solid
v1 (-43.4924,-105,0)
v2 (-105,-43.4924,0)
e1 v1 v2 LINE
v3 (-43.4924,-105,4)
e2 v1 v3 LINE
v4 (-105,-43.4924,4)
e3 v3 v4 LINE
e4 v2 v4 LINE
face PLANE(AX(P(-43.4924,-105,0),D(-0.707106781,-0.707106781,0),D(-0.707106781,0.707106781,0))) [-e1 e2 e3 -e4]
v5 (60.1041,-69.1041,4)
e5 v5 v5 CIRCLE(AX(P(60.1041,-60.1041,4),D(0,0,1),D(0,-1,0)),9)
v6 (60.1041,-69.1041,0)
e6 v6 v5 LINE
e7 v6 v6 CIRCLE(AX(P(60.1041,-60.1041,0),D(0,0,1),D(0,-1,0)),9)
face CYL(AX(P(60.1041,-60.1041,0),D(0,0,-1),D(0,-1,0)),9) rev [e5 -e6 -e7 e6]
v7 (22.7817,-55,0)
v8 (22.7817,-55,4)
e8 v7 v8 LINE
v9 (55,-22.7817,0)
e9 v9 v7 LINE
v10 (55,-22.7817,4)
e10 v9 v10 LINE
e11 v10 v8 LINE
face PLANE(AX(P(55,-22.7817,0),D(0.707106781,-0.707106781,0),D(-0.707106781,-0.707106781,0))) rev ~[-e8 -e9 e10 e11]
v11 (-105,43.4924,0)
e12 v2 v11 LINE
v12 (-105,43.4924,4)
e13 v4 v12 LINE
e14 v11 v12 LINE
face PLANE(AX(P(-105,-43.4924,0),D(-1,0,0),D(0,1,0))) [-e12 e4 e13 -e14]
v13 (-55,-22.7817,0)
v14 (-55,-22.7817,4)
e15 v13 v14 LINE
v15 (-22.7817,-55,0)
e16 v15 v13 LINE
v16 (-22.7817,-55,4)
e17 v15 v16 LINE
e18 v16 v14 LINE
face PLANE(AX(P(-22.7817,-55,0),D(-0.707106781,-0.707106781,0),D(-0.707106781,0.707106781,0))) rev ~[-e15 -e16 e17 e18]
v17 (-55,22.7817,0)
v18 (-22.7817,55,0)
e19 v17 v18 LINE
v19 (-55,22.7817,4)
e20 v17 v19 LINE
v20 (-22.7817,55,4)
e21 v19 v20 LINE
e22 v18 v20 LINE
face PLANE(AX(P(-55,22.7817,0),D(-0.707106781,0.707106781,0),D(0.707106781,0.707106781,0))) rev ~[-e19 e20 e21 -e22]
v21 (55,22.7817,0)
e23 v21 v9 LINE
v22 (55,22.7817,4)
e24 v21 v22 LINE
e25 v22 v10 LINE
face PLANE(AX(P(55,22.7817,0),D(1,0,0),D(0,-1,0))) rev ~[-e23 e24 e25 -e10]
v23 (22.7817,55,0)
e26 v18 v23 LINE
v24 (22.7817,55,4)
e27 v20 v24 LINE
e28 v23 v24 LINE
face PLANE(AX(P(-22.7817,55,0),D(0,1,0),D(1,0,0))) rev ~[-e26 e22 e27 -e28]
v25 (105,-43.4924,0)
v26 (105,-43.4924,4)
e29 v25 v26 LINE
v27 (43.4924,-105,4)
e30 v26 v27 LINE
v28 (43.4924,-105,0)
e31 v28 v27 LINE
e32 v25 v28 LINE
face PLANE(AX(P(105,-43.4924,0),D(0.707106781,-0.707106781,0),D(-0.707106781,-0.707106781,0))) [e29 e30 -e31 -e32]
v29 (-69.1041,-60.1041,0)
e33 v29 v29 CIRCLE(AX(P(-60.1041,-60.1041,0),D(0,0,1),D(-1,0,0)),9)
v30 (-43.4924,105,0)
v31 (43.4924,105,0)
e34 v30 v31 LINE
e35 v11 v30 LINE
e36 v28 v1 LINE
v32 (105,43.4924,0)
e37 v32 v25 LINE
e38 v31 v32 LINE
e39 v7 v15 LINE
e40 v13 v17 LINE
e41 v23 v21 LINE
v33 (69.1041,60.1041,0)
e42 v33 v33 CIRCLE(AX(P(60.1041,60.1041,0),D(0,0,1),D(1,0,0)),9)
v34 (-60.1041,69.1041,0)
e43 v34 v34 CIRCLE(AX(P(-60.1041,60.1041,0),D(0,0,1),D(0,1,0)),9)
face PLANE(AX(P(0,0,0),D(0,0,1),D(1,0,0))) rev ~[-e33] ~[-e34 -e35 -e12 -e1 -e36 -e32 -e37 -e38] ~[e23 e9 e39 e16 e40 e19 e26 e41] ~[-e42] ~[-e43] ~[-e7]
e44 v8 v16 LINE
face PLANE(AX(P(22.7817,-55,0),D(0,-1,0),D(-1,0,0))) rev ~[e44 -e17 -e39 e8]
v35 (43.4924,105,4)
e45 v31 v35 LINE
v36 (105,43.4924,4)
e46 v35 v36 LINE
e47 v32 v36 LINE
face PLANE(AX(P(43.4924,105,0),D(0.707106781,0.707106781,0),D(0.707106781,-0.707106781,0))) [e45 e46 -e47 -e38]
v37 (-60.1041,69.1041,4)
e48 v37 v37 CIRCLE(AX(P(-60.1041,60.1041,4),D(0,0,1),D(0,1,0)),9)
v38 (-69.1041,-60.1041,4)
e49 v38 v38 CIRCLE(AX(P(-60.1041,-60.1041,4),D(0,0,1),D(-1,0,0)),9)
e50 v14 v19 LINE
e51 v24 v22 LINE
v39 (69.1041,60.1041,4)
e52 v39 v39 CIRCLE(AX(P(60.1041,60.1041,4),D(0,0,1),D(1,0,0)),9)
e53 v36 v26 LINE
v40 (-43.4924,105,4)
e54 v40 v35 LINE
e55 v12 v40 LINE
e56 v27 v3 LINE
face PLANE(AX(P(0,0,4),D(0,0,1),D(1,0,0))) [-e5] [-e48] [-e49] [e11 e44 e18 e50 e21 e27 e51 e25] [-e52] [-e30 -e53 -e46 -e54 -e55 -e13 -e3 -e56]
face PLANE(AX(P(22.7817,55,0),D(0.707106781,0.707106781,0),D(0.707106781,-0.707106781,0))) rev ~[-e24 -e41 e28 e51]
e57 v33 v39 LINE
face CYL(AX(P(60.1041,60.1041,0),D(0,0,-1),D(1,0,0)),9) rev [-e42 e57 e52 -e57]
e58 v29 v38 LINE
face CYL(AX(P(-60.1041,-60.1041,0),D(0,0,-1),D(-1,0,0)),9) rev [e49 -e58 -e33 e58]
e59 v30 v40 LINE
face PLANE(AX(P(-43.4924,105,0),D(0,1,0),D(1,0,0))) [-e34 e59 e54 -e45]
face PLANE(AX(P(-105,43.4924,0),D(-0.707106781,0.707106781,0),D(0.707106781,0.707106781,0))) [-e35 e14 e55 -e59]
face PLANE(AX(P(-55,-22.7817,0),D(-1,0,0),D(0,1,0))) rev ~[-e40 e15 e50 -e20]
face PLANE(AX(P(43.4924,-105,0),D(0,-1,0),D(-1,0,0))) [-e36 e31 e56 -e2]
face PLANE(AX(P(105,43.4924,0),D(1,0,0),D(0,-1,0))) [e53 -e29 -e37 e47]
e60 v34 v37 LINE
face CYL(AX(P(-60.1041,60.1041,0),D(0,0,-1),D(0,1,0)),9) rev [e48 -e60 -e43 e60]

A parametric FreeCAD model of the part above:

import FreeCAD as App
import Part
import Sketcher

V = App.Vector
Q = App.Units.Quantity

doc = App.newDocument("Part")
params = doc.addObject("Spreadsheet::Sheet", "Params")
for row, (alias, value) in enumerate([
    ("pad1_length", "4 mm"),
    ("sketch2_diameter", "18 mm"),
    ("pocket1_length", "4 mm"),
], start=1):
    params.set(f"A{row}", alias)
    params.set(f"B{row}", "=" + value)
    params.setAlias(f"B{row}", alias)

body = doc.addObject("PartDesign::Body", "Body")

# Sketch on XY plane
sketch1 = doc.addObject("Sketcher::SketchObject", "Sketch")
body.addObject(sketch1)
sketch1.AttachmentSupport = (doc.XY_Plane, [""])
sketch1.MapMode = "FlatFace"
sketch1.addGeometry(Part.LineSegment(V(-43, -105, 0), V(43, -105, 0)), False)
sketch1.addGeometry(Part.LineSegment(V(43, -105, 0), V(105, -43, 0)), False)
sketch1.addGeometry(Part.LineSegment(V(105, -43, 0), V(105, 43, 0)), False)
sketch1.addGeometry(Part.LineSegment(V(105, 43, 0), V(43, 105, 0)), False)
sketch1.addGeometry(Part.LineSegment(V(43, 105, 0), V(-43, 105, 0)), False)
sketch1.addGeometry(Part.LineSegment(V(-43, 105, 0), V(-105, 43, 0)), False)
sketch1.addGeometry(Part.LineSegment(V(-105, 43, 0), V(-105, -43, 0)), False)
sketch1.addGeometry(Part.LineSegment(V(-105, -43, 0), V(-43, -105, 0)), False)
sketch1.addGeometry(Part.LineSegment(V(-23, 55, 0), V(23, 55, 0)), False)
sketch1.addGeometry(Part.LineSegment(V(23, 55, 0), V(55, 23, 0)), False)
sketch1.addGeometry(Part.LineSegment(V(55, 23, 0), V(55, -23, 0)), False)
sketch1.addGeometry(Part.LineSegment(V(55, -23, 0), V(23, -55, 0)), False)
sketch1.addGeometry(Part.LineSegment(V(23, -55, 0), V(-23, -55, 0)), False)
sketch1.addGeometry(Part.LineSegment(V(-23, -55, 0), V(-55, -23, 0)), False)
sketch1.addGeometry(Part.LineSegment(V(-55, -23, 0), V(-55, 23, 0)), False)
sketch1.addGeometry(Part.LineSegment(V(-55, 23, 0), V(-23, 55, 0)), False)
sketch1.addConstraint(Sketcher.Constraint("Coincident", 0, 2, 1, 1))
sketch1.addConstraint(Sketcher.Constraint("Coincident", 1, 2, 2, 1))
sketch1.addConstraint(Sketcher.Constraint("Coincident", 2, 2, 3, 1))
sketch1.addConstraint(Sketcher.Constraint("Coincident", 3, 2, 4, 1))
sketch1.addConstraint(Sketcher.Constraint("Coincident", 4, 2, 5, 1))
sketch1.addConstraint(Sketcher.Constraint("Coincident", 5, 2, 6, 1))
sketch1.addConstraint(Sketcher.Constraint("Coincident", 6, 2, 7, 1))
sketch1.addConstraint(Sketcher.Constraint("Coincident", 7, 2, 0, 1))
sketch1.addConstraint(Sketcher.Constraint("Coincident", 8, 2, 9, 1))
sketch1.addConstraint(Sketcher.Constraint("Coincident", 9, 2, 10, 1))
sketch1.addConstraint(Sketcher.Constraint("Coincident", 10, 2, 11, 1))
sketch1.addConstraint(Sketcher.Constraint("Coincident", 11, 2, 12, 1))
sketch1.addConstraint(Sketcher.Constraint("Coincident", 12, 2, 13, 1))
sketch1.addConstraint(Sketcher.Constraint("Coincident", 13, 2, 14, 1))
sketch1.addConstraint(Sketcher.Constraint("Coincident", 14, 2, 15, 1))
sketch1.addConstraint(Sketcher.Constraint("Coincident", 15, 2, 8, 1))
sketch1.addConstraint(Sketcher.Constraint("Horizontal", 0))
sketch1.addConstraint(Sketcher.Constraint("Vertical", 2))
sketch1.addConstraint(Sketcher.Constraint("Horizontal", 4))
sketch1.addConstraint(Sketcher.Constraint("Vertical", 6))
sketch1.addConstraint(Sketcher.Constraint("Horizontal", 8))
sketch1.addConstraint(Sketcher.Constraint("Vertical", 10))
sketch1.addConstraint(Sketcher.Constraint("Horizontal", 12))
sketch1.addConstraint(Sketcher.Constraint("Vertical", 14))
sketch1.addConstraint(Sketcher.Constraint("Symmetric", 0, 2, 4, 2, -1, 1))
sketch1.addConstraint(Sketcher.Constraint("Symmetric", 1, 2, 5, 2, -1, 1))
sketch1.addConstraint(Sketcher.Constraint("Symmetric", 8, 2, 12, 2, -1, 1))
sketch1.addConstraint(Sketcher.Constraint("Symmetric", 9, 2, 13, 2, -1, 1))
sketch1.addConstraint(Sketcher.Constraint("Perpendicular", 1, 3))
sketch1.addConstraint(Sketcher.Constraint("Perpendicular", 5, 7))
sketch1.addConstraint(Sketcher.Constraint("Parallel", 7, 9))
sketch1.addConstraint(Sketcher.Constraint("Perpendicular", 9, 11))
sketch1.addConstraint(Sketcher.Constraint("Perpendicular", 13, 15))
sketch1.addConstraint(Sketcher.Constraint("Horizontal", 2, 2, 5, 2))
sketch1.addConstraint(Sketcher.Constraint("Horizontal", 1, 2, 6, 2))
sketch1.addConstraint(Sketcher.Constraint("Horizontal", 10, 2, 13, 2))
sketch1.addConstraint(Sketcher.Constraint("Horizontal", 9, 2, 14, 2))
sketch1.addConstraint(Sketcher.Constraint("Vertical", 0, 2, 3, 2))
sketch1.addConstraint(Sketcher.Constraint("Equal", 4, 2))
sketch1.addConstraint(Sketcher.Constraint("Equal", 12, 10))
sketch1.addConstraint(Sketcher.Constraint("DistanceY", 0, 2, 3, 2, Q("210 mm")))
sketch1.addConstraint(Sketcher.Constraint("DistanceY", -1, 1, 8, 2, Q("55 mm")))
sketch1.addConstraint(Sketcher.Constraint("Distance", 1, Q("86.985 mm")))
sketch1.addConstraint(Sketcher.Constraint("DistanceX", 8, 1, 8, 2, Q("45.5634 mm")))
pad1 = doc.addObject("PartDesign::Pad", "Pad")
body.addObject(pad1)
pad1.Profile = sketch1
pad1.setExpression("Length", "Params.pad1_length")

# Sketch on XY plane
sketch2 = doc.addObject("Sketcher::SketchObject", "Sketch001")
body.addObject(sketch2)
sketch2.AttachmentSupport = (doc.XY_Plane, [""])
sketch2.MapMode = "FlatFace"
sketch2.addGeometry(Part.Circle(V(60, 60, 0), V(0, 0, 1), 9), False)
sketch2.addConstraint(Sketcher.Constraint("Diameter", 0, Q("18 mm")))
sketch2.addConstraint(Sketcher.Constraint("DistanceX", -1, 1, 0, 3, Q("60.104 mm")))
sketch2.addConstraint(Sketcher.Constraint("DistanceY", -1, 1, 0, 3, Q("60.104 mm")))
sketch2.setExpression("Constraints[0]", "Params.sketch2_diameter")
pocket1 = doc.addObject("PartDesign::Pocket", "Pocket")
body.addObject(pocket1)
pocket1.Profile = sketch2
pocket1.setExpression("Length", "Params.pocket1_length")
pocket1.Reversed = True
doc.recompute()

polarpattern = doc.addObject("PartDesign::PolarPattern", "PolarPattern")
body.addObject(polarpattern)
polarpattern.Originals = [pocket1]
polarpattern.Axis = (doc.Z_Axis, [""])
polarpattern.Angle = 360
polarpattern.Occurrences = 4
body.Tip = polarpattern

doc.recompute()
